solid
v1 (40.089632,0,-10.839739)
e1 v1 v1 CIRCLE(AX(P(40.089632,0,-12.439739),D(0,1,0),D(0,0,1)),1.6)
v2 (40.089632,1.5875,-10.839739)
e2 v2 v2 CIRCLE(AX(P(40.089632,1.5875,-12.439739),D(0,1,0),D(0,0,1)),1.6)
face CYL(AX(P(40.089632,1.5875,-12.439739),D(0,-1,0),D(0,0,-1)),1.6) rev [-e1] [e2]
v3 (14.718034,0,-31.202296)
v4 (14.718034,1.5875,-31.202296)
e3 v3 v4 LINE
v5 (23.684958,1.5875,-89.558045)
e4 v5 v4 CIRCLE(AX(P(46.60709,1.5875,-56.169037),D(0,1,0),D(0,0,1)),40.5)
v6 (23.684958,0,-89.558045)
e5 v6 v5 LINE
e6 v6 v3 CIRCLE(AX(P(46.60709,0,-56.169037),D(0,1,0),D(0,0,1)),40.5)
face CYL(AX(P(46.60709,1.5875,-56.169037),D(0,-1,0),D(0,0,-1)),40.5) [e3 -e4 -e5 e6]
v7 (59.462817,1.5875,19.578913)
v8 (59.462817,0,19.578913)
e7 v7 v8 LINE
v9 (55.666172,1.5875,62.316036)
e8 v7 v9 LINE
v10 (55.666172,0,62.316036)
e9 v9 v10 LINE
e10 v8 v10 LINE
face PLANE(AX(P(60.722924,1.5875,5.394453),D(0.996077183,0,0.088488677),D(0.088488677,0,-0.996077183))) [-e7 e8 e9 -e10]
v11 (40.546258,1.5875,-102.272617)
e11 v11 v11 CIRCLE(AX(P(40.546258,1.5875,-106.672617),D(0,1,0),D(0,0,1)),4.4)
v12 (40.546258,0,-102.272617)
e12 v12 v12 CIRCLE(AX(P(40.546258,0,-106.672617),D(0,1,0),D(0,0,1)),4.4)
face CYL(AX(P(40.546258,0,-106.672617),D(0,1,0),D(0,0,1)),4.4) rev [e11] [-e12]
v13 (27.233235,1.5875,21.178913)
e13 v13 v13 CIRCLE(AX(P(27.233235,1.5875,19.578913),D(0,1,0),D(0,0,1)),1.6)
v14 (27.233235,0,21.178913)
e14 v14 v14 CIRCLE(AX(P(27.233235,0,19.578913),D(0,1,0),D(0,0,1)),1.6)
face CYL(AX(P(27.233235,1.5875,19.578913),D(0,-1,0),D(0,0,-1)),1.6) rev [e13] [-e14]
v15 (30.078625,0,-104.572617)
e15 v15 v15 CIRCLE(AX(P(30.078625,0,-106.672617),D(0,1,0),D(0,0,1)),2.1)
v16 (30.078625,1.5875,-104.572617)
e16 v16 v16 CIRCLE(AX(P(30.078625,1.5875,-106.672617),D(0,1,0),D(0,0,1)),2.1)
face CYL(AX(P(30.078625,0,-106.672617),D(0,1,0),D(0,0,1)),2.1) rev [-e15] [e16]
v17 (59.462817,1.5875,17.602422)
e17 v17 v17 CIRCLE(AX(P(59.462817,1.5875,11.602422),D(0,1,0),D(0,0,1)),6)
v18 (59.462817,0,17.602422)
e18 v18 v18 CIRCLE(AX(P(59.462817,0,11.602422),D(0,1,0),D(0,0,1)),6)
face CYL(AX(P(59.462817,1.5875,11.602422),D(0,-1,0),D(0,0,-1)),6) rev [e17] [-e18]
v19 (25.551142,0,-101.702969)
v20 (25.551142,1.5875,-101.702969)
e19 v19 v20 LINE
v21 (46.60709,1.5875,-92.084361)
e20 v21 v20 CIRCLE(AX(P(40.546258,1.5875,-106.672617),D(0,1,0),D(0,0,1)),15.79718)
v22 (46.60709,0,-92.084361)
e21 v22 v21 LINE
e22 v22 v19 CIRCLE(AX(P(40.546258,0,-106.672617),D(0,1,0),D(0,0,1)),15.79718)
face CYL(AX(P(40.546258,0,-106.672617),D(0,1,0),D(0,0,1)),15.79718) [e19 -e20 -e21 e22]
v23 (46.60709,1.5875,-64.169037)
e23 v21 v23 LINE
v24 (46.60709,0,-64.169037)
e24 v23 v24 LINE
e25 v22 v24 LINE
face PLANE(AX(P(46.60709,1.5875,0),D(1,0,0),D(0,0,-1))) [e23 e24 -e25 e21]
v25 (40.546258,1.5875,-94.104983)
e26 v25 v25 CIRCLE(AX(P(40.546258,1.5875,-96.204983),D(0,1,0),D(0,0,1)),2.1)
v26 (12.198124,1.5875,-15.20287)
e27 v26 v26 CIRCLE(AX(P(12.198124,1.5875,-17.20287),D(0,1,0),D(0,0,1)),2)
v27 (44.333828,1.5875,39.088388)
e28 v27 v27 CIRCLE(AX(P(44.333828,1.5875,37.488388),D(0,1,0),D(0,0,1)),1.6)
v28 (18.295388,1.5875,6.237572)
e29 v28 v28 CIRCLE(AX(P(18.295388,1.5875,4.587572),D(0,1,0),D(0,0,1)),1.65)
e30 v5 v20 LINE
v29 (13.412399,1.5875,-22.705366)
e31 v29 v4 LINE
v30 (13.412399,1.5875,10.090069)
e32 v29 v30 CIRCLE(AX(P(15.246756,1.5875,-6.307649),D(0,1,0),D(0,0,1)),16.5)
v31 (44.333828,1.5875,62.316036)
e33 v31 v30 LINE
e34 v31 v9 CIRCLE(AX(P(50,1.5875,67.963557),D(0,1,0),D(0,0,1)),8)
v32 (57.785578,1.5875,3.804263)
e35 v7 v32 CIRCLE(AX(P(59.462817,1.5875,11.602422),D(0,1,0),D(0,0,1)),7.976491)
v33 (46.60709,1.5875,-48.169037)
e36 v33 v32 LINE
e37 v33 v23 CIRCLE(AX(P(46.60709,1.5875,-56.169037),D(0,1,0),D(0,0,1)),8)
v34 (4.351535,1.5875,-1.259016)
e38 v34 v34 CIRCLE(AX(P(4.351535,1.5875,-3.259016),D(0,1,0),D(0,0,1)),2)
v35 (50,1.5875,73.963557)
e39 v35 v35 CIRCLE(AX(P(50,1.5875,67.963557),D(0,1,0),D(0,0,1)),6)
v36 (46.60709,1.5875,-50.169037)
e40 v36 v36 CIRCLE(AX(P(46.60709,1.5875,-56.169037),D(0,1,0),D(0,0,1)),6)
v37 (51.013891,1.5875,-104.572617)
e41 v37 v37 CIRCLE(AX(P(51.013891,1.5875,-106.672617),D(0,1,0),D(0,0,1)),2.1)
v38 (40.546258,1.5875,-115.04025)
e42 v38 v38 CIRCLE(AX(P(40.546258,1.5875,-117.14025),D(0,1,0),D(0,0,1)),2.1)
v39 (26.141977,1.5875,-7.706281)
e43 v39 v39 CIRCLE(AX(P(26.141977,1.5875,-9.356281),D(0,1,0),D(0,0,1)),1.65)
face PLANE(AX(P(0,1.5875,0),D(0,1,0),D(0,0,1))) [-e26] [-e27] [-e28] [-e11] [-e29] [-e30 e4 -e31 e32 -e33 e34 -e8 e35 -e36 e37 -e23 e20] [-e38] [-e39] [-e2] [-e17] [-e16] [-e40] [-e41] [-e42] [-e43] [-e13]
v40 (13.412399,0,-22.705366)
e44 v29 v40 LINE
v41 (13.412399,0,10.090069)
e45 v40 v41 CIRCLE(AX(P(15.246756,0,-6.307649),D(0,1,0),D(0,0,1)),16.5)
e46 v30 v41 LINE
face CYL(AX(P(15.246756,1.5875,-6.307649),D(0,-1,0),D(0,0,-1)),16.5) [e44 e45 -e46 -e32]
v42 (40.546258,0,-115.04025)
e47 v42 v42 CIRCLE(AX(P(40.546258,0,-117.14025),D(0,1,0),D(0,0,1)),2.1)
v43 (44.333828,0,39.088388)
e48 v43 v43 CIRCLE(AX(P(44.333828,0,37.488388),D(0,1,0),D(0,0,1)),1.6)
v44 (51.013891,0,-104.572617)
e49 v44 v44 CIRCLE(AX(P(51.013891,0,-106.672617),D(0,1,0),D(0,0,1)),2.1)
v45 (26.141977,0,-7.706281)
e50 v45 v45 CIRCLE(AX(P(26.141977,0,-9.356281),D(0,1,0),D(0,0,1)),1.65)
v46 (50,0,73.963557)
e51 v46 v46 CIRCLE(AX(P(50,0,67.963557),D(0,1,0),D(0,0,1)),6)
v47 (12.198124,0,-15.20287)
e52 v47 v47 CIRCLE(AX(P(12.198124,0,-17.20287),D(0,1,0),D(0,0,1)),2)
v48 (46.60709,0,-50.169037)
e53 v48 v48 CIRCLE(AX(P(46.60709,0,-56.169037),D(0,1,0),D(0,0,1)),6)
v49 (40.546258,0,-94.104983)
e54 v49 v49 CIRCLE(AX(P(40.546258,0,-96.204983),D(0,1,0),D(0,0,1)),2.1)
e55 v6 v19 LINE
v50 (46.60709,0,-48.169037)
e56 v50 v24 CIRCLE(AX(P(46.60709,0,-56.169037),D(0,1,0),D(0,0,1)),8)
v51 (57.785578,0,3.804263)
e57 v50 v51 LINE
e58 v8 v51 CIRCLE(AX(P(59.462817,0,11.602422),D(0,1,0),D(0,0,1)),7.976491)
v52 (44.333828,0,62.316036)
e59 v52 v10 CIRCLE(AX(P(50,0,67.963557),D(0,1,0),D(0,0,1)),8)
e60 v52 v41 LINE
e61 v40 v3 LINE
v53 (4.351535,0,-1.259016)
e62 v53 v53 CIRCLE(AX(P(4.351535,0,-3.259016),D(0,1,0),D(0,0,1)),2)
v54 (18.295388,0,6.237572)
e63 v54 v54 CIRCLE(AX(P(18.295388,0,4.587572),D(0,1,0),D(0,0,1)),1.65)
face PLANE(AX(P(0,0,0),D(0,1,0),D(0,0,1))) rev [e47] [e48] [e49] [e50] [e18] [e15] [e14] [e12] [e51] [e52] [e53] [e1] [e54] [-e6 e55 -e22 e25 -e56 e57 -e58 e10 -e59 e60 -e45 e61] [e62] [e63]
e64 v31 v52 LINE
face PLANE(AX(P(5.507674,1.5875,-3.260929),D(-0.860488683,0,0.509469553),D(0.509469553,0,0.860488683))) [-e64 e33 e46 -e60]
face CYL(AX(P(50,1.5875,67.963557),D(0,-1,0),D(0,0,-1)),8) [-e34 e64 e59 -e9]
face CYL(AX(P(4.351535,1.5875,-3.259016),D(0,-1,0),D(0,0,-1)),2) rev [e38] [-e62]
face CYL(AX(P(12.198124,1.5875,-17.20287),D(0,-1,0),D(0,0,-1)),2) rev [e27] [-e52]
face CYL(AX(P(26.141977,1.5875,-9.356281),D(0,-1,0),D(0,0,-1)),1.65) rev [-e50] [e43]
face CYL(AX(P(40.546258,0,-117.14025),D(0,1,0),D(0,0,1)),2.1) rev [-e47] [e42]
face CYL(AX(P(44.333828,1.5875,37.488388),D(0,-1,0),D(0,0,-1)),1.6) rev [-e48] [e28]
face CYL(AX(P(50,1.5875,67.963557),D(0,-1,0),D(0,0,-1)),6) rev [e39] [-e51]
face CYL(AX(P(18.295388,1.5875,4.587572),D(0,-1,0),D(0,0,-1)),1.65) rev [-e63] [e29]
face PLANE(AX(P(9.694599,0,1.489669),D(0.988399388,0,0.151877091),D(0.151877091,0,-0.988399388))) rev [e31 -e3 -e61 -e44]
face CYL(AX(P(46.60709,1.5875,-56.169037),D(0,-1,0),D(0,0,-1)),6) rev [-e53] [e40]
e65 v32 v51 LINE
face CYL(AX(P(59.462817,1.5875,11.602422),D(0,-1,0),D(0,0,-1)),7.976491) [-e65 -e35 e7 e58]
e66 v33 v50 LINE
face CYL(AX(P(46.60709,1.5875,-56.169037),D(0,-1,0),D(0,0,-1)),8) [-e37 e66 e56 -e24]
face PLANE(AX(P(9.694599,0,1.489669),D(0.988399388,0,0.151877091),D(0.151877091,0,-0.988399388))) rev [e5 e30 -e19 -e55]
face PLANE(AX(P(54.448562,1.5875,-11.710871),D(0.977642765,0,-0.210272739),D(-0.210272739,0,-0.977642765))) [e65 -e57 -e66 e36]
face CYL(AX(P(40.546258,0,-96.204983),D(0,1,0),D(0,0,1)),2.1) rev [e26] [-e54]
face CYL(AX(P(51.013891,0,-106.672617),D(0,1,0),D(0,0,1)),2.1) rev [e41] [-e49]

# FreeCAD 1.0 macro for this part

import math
import FreeCAD as App
import Part
import Sketcher
from FreeCAD import Vector

doc = App.newDocument("Part")
params = doc.addObject("Spreadsheet::Sheet", "Params")
for row, (alias, value) in enumerate([
    ("sketch1_diameter", "12 mm"),
    ("sketch1_diameter2", "4 mm"),
    ("sketch1_radius", "8 mm"),
    ("sketch1_diameter3", "3.2 mm"),
    ("sketch1_diameter4", "3.3 mm"),
    ("pad1_length", "1.5875 mm"),
    ("sketch2_radius", "40.5 mm"),
    ("pad2_length", "1.5875 mm"),
    ("sketch3_diameter", "8.8 mm"),
    ("sketch3_diameter2", "4.2 mm"),
    ("pocket1_length", "1.5875 mm"),
], start=1):
    params.set(f"A{row}", alias)
    params.set(f"B{row}", "=" + value)
    params.setAlias(f"B{row}", alias)

body = doc.addObject("PartDesign::Body", "Body")

# Sketch on XZ plane
sketch1 = body.newObject("Sketcher::SketchObject", "Sketch")
sketch1.AttachmentSupport = (doc.getObject("XZ_Plane"), [""])
sketch1.MapMode = "FlatFace"
sketch1.addGeometry(Part.LineSegment(Vector(57.785578, 3.804263, 0), Vector(46.60709, -48.169037, 0)), False)
sketch1.addGeometry(Part.ArcOfCircle(Part.Circle(Vector(46.60709, -56.169037, 0), Vector(0, 0, 1), 8), math.radians(-90), math.radians(90)), False)
sketch1.addGeometry(Part.LineSegment(Vector(46.60709, -64.169037, 0), Vector(46.60709, -96.669037, 0)), False)
sketch1.addGeometry(Part.ArcOfCircle(Part.Circle(Vector(46.60709, -56.169037, 0), Vector(0, 0, 1), 40.5), math.radians(139.144707), math.radians(270)), False)
sketch1.addGeometry(Part.LineSegment(Vector(15.974342, -29.675929, 0), Vector(13.412399, -22.705366, 0)), False)
sketch1.addGeometry(Part.ArcOfCircle(Part.Circle(Vector(15.246756, -6.307649, 0), Vector(0, 0, 1), 16.5), math.radians(96.382947), math.radians(263.617053)), False)
sketch1.addGeometry(Part.LineSegment(Vector(13.412399, 10.090069, 0), Vector(44.333828, 62.316036, 0)), False)
sketch1.addGeometry(Part.ArcOfCircle(Part.Circle(Vector(50, 67.963557, 0), Vector(0, 0, 1), 8), math.radians(-44.905551), math.radians(224.905551)), False)
sketch1.addGeometry(Part.LineSegment(Vector(55.666172, 62.316036, 0), Vector(59.462817, 19.578913, 0)), False)
sketch1.addGeometry(Part.ArcOfCircle(Part.Circle(Vector(59.462817, 11.602422, 0), Vector(0, 0, 1), 7.976491), math.radians(-102.138336), math.radians(90)), False)
sketch1.addGeometry(Part.Circle(Vector(27.233235, 19.578913, 0), Vector(0, 0, 1), 1.6), False)
sketch1.addGeometry(Part.Circle(Vector(50, 67.963557, 0), Vector(0, 0, 1), 6), False)
sketch1.addGeometry(Part.Circle(Vector(44.333828, 37.488388, 0), Vector(0, 0, 1), 1.6), False)
sketch1.addGeometry(Part.Circle(Vector(59.462817, 11.602422, 0), Vector(0, 0, 1), 6), False)
sketch1.addGeometry(Part.Circle(Vector(4.351535, -3.259016, 0), Vector(0, 0, 1), 2), False)
sketch1.addGeometry(Part.Circle(Vector(12.198124, -17.20287, 0), Vector(0, 0, 1), 2), False)
sketch1.addGeometry(Part.Circle(Vector(18.295388, 4.587572, 0), Vector(0, 0, 1), 1.65), False)
sketch1.addGeometry(Part.Circle(Vector(26.141977, -9.356281, 0), Vector(0, 0, 1), 1.65), False)
sketch1.addGeometry(Part.Circle(Vector(40.089632, -12.439739, 0), Vector(0, 0, 1), 1.6), False)
sketch1.addGeometry(Part.Circle(Vector(46.60709, -56.169037, 0), Vector(0, 0, 1), 6), False)
sketch1.addConstraint(Sketcher.Constraint("Coincident", 0, 2, 1, 2))
sketch1.addConstraint(Sketcher.Constraint("Coincident", 1, 1, 2, 1))
sketch1.addConstraint(Sketcher.Constraint("Coincident", 2, 2, 3, 2))
sketch1.addConstraint(Sketcher.Constraint("Coincident", 3, 1, 4, 1))
sketch1.addConstraint(Sketcher.Constraint("Coincident", 4, 2, 5, 2))
sketch1.addConstraint(Sketcher.Constraint("Coincident", 5, 1, 6, 1))
sketch1.addConstraint(Sketcher.Constraint("Coincident", 6, 2, 7, 2))
sketch1.addConstraint(Sketcher.Constraint("Coincident", 7, 1, 8, 1))
sketch1.addConstraint(Sketcher.Constraint("Coincident", 8, 2, 9, 2))
sketch1.addConstraint(Sketcher.Constraint("Coincident", 9, 1, 0, 1))
sketch1.addConstraint(Sketcher.Constraint("Vertical", 2))
sketch1.addConstraint(Sketcher.Constraint("Coincident", 3, 3, 1, 3))
sketch1.addConstraint(Sketcher.Constraint("Coincident", 11, 3, 7, 3))
sketch1.addConstraint(Sketcher.Constraint("Coincident", 13, 3, 9, 3))
sketch1.addConstraint(Sketcher.Constraint("Coincident", 19, 3, 1, 3))
sketch1.addConstraint(Sketcher.Constraint("Equal", 1, 7))
sketch1.addConstraint(Sketcher.Constraint("Equal", 10, 12))
sketch1.addConstraint(Sketcher.Constraint("Equal", 11, 13))
sketch1.addConstraint(Sketcher.Constraint("Equal", 14, 15))
sketch1.addConstraint(Sketcher.Constraint("Equal", 16, 17))
sketch1.addConstraint(Sketcher.Constraint("Equal", 12, 18))
sketch1.addConstraint(Sketcher.Constraint("Equal", 13, 19))
sketch1.addConstraint(Sketcher.Constraint("Horizontal", 6, 2, 7, 1))
sketch1.addConstraint(Sketcher.Constraint("Horizontal", 10, 3, 8, 2))
sketch1.addConstraint(Sketcher.Constraint("Vertical", 19, 3, 0, 2))
sketch1.addConstraint(Sketcher.Constraint("Vertical", 0, 2, 1, 1))
sketch1.addConstraint(Sketcher.Constraint("Vertical", 4, 2, 5, 1))
sketch1.addConstraint(Sketcher.Constraint("Vertical", 12, 3, 6, 2))
sketch1.addConstraint(Sketcher.Constraint("Vertical", 13, 3, 8, 2))
sketch1.addConstraint(Sketcher.Constraint("Diameter", 11, 12.0))
sketch1.addConstraint(Sketcher.Constraint("Diameter", 14, 4.0))
sketch1.addConstraint(Sketcher.Constraint("Radius", 1, 8.0))
sketch1.addConstraint(Sketcher.Constraint("Diameter", 10, 3.2))
sketch1.addConstraint(Sketcher.Constraint("Diameter", 16, 3.3))
sketch1.addConstraint(Sketcher.Constraint("Radius", 3, 40.5))
sketch1.addConstraint(Sketcher.Constraint("Radius", 5, 16.5))
sketch1.addConstraint(Sketcher.Constraint("DistanceX", -1, 1, 7, 3, 50.0))
sketch1.addConstraint(Sketcher.Constraint("Radius", 9, 7.976491))
sketch1.addConstraint(Sketcher.Constraint("DistanceX", -1, 1, 4, 2, 13.412399))
sketch1.addConstraint(Sketcher.Constraint("DistanceX", 14, 3, 10, 3, 22.8817))
sketch1.addConstraint(Sketcher.Constraint("DistanceY", 19, 3, 18, 3, 43.729298))
sketch1.addConstraint(Sketcher.Constraint("DistanceX", 17, 3, 9, 1, 31.643601))
sketch1.addConstraint(Sketcher.Constraint("Distance", 4, 7.42646))
sketch1.addConstraint(Sketcher.Constraint("Distance", 6, 60.69338))
sketch1.addConstraint(Sketcher.Constraint("DistanceX", -1, 1, 1, 3, 46.60709))
sketch1.addConstraint(Sketcher.Constraint("DistanceY", 5, 3, -1, 1, 6.307649))
sketch1.addConstraint(Sketcher.Constraint("DistanceY", -1, 1, 9, 3, 11.602422))
sketch1.addConstraint(Sketcher.Constraint("DistanceX", -1, 1, 12, 3, 44.333828))
sketch1.addConstraint(Sketcher.Constraint("DistanceY", 15, 3, -1, 1, 17.20287))
sketch1.addConstraint(Sketcher.Constraint("DistanceX", -1, 1, 16, 3, 18.295388))
sketch1.addConstraint(Sketcher.Constraint("DistanceY", 17, 3, -1, 1, 9.356281))
sketch1.addConstraint(Sketcher.Constraint("DistanceY", 18, 3, -1, 1, 12.439739))
sketch1.addConstraint(Sketcher.Constraint("DistanceY", 3, 1, -1, 1, 29.675929))
sketch1.addConstraint(Sketcher.Constraint("DistanceX", 5, 3, 9, 3, 44.216061))
sketch1.addConstraint(Sketcher.Constraint("DistanceX", 5, 3, 10, 3, 11.986479))
sketch1.addConstraint(Sketcher.Constraint("DistanceY", 12, 3, 7, 3, 30.47517))
sketch1.addConstraint(Sketcher.Constraint("DistanceY", 14, 3, 10, 3, 22.837929))
sketch1.addConstraint(Sketcher.Constraint("DistanceX", 14, 3, 15, 3, 7.846589))
sketch1.addConstraint(Sketcher.Constraint("DistanceY", 5, 3, 16, 3, 10.895221))
sketch1.addConstraint(Sketcher.Constraint("DistanceX", 5, 3, 17, 3, 10.895221))
sketch1.addConstraint(Sketcher.Constraint("DistanceX", 15, 3, 18, 3, 27.891509))
sketch1.setExpression("Constraints[29]", "Params.sketch1_diameter")
sketch1.setExpression("Constraints[30]", "Params.sketch1_diameter2")
sketch1.setExpression("Constraints[31]", "Params.sketch1_radius")
sketch1.setExpression("Constraints[32]", "Params.sketch1_diameter3")
sketch1.setExpression("Constraints[33]", "Params.sketch1_diameter4")
pad1 = body.newObject("PartDesign::Pad", "Pad")
pad1.Profile = sketch1
pad1.setExpression("Length", "Params.pad1_length")
pad1.Reversed = True

# Sketch on XZ plane
sketch2 = body.newObject("Sketcher::SketchObject", "Sketch001")
sketch2.AttachmentSupport = (doc.getObject("XZ_Plane"), [""])
sketch2.MapMode = "FlatFace"
sketch2.addGeometry(Part.ArcOfCircle(Part.Circle(Vector(40.546258, -106.672617, 0), Vector(0, 0, 1), 15.79718), math.radians(161.663887), math.radians(360)), False)
sketch2.addGeometry(Part.LineSegment(Vector(25.551142, -101.702969, 0), Vector(23.684958, -89.558045, 0)), False)
sketch2.addGeometry(Part.ArcOfCircle(Part.Circle(Vector(46.60709, -56.169037, 0), Vector(0, 0, 1), 40.5), math.radians(-124.470273), math.radians(-111.934692)), False)
sketch2.addGeometry(Part.ArcOfCircle(Part.Circle(Vector(40.546258, -106.672617, 0), Vector(0, 0, 1), 15.79718), math.radians(67.439086), math.radians(125.031148)), False)
sketch2.addGeometry(Part.ArcOfCircle(Part.Circle(Vector(40.546258, -106.672617, 0), Vector(0, 0, 1), 15.79718), math.radians(0), math.radians(67.439086)), False)
sketch2.addGeometry(Part.LineSegment(Vector(14.718034, -31.202296, 0), Vector(13.412399, -22.705366, 0)), False)
sketch2.addGeometry(Part.LineSegment(Vector(13.412399, -22.705366, 0), Vector(15.974342, -29.675929, 0)), False)
sketch2.addGeometry(Part.ArcOfCircle(Part.Circle(Vector(46.607092, -56.169039, 0), Vector(0, 0, 1), 40.500003), math.radians(139.144708), math.radians(141.941717)), False)
sketch2.addConstraint(Sketcher.Constraint("Coincident", 0, 1, 1, 1))
sketch2.addConstraint(Sketcher.Constraint("Coincident", 1, 2, 2, 1))
sketch2.addConstraint(Sketcher.Constraint("Coincident", 2, 2, 3, 2))
sketch2.addConstraint(Sketcher.Constraint("Tangent", 3, 1, 4, 2))
sketch2.addConstraint(Sketcher.Constraint("Tangent", 4, 1, 0, 2))
sketch2.addConstraint(Sketcher.Constraint("Coincident", 5, 2, 6, 1))
sketch2.addConstraint(Sketcher.Constraint("Coincident", 6, 2, 7, 1))
sketch2.addConstraint(Sketcher.Constraint("Coincident", 7, 2, 5, 1))
sketch2.addConstraint(Sketcher.Constraint("Coincident", 3, 3, 0, 3))
sketch2.addConstraint(Sketcher.Constraint("Coincident", 7, 3, 2, 3))
sketch2.addConstraint(Sketcher.Constraint("Parallel", 1, 5))
sketch2.addConstraint(Sketcher.Constraint("Horizontal", 3, 3, 4, 1))
sketch2.addConstraint(Sketcher.Constraint("Vertical", 2, 3, 3, 1))
sketch2.addConstraint(Sketcher.Constraint("Radius", 2, 40.5))
sketch2.addConstraint(Sketcher.Constraint("Radius", 0, 15.79718))
sketch2.addConstraint(Sketcher.Constraint("Radius", 7, 40.500003))
sketch2.addConstraint(Sketcher.Constraint("DistanceX", -1, 1, 5, 2, 13.412399))
sketch2.addConstraint(Sketcher.Constraint("DistanceX", 1, 2, 4, 3, 16.8613))
sketch2.addConstraint(Sketcher.Constraint("Distance", 6, 7.42646))
sketch2.addConstraint(Sketcher.Constraint("DistanceX", -1, 1, 2, 3, 46.60709))
sketch2.addConstraint(Sketcher.Constraint("DistanceY", 7, 3, -1, 1, 56.169039))
sketch2.addConstraint(Sketcher.Constraint("DistanceY", 0, 1, -1, 1, 101.702969))
sketch2.addConstraint(Sketcher.Constraint("DistanceY", 3, 1, -1, 1, 92.084361))
sketch2.addConstraint(Sketcher.Constraint("DistanceY", 6, 2, -1, 1, 29.675929))
sketch2.addConstraint(Sketcher.Constraint("DistanceX", 0, 3, 2, 3, 6.060832))
sketch2.setExpression("Constraints[13]", "Params.sketch2_radius")
pad2 = body.newObject("PartDesign::Pad", "Pad001")
pad2.Profile = sketch2
pad2.setExpression("Length", "Params.pad2_length")
pad2.Reversed = True

# Sketch on XZ plane
sketch3 = body.newObject("Sketcher::SketchObject", "Sketch002")
sketch3.AttachmentSupport = (doc.getObject("XZ_Plane"), [""])
sketch3.MapMode = "FlatFace"
sketch3.AttachmentOffset = App.Placement(Vector(0, 0, -1.5875), App.Rotation())
sketch3.addGeometry(Part.Circle(Vector(40.546258, -106.672617, 0), Vector(0, 0, 1), 4.4), False)
sketch3.addGeometry(Part.Circle(Vector(40.546258, -117.14025, 0), Vector(0, 0, 1), 2.1), False)
sketch3.addGeometry(Part.Circle(Vector(30.078625, -106.672617, 0), Vector(0, 0, 1), 2.1), False)
sketch3.addGeometry(Part.Circle(Vector(51.013891, -106.672617, 0), Vector(0, 0, 1), 2.1), False)
sketch3.addGeometry(Part.Circle(Vector(40.546258, -96.204983, 0), Vector(0, 0, 1), 2.1), False)
sketch3.addConstraint(Sketcher.Constraint("Equal", 1, 2))
sketch3.addConstraint(Sketcher.Constraint("Equal", 2, 3))
sketch3.addConstraint(Sketcher.Constraint("Equal", 3, 4))
sketch3.addConstraint(Sketcher.Constraint("Horizontal", 0, 3, 2, 3))
sketch3.addConstraint(Sketcher.Constraint("Horizontal", 2, 3, 3, 3))
sketch3.addConstraint(Sketcher.Constraint("Vertical", 0, 3, 1, 3))
sketch3.addConstraint(Sketcher.Constraint("Vertical", 1, 3, 4, 3))
sketch3.addConstraint(Sketcher.Constraint("Diameter", 0, 8.8))
sketch3.addConstraint(Sketcher.Constraint("Diameter", 1, 4.2))
sketch3.addConstraint(Sketcher.Constraint("DistanceY", 1, 3, -1, 1, 117.14025))
sketch3.addConstraint(Sketcher.Constraint("DistanceX", -1, 1, 3, 3, 51.013891))
sketch3.addConstraint(Sketcher.Constraint("DistanceX", -1, 1, 0, 3, 40.546258))
sketch3.addConstraint(Sketcher.Constraint("DistanceY", 0, 3, -1, 1, 106.672617))
sketch3.addConstraint(Sketcher.Constraint("DistanceX", -1, 1, 2, 3, 30.078625))
sketch3.addConstraint(Sketcher.Constraint("DistanceY", 4, 3, -1, 1, 96.204983))
sketch3.setExpression("Constraints[7]", "Params.sketch3_diameter")
sketch3.setExpression("Constraints[8]", "Params.sketch3_diameter2")
pocket1 = body.newObject("PartDesign::Pocket", "Pocket")
pocket1.Profile = sketch3
pocket1.setExpression("Length", "Params.pocket1_length")
pocket1.Reversed = True

doc.recompute()
